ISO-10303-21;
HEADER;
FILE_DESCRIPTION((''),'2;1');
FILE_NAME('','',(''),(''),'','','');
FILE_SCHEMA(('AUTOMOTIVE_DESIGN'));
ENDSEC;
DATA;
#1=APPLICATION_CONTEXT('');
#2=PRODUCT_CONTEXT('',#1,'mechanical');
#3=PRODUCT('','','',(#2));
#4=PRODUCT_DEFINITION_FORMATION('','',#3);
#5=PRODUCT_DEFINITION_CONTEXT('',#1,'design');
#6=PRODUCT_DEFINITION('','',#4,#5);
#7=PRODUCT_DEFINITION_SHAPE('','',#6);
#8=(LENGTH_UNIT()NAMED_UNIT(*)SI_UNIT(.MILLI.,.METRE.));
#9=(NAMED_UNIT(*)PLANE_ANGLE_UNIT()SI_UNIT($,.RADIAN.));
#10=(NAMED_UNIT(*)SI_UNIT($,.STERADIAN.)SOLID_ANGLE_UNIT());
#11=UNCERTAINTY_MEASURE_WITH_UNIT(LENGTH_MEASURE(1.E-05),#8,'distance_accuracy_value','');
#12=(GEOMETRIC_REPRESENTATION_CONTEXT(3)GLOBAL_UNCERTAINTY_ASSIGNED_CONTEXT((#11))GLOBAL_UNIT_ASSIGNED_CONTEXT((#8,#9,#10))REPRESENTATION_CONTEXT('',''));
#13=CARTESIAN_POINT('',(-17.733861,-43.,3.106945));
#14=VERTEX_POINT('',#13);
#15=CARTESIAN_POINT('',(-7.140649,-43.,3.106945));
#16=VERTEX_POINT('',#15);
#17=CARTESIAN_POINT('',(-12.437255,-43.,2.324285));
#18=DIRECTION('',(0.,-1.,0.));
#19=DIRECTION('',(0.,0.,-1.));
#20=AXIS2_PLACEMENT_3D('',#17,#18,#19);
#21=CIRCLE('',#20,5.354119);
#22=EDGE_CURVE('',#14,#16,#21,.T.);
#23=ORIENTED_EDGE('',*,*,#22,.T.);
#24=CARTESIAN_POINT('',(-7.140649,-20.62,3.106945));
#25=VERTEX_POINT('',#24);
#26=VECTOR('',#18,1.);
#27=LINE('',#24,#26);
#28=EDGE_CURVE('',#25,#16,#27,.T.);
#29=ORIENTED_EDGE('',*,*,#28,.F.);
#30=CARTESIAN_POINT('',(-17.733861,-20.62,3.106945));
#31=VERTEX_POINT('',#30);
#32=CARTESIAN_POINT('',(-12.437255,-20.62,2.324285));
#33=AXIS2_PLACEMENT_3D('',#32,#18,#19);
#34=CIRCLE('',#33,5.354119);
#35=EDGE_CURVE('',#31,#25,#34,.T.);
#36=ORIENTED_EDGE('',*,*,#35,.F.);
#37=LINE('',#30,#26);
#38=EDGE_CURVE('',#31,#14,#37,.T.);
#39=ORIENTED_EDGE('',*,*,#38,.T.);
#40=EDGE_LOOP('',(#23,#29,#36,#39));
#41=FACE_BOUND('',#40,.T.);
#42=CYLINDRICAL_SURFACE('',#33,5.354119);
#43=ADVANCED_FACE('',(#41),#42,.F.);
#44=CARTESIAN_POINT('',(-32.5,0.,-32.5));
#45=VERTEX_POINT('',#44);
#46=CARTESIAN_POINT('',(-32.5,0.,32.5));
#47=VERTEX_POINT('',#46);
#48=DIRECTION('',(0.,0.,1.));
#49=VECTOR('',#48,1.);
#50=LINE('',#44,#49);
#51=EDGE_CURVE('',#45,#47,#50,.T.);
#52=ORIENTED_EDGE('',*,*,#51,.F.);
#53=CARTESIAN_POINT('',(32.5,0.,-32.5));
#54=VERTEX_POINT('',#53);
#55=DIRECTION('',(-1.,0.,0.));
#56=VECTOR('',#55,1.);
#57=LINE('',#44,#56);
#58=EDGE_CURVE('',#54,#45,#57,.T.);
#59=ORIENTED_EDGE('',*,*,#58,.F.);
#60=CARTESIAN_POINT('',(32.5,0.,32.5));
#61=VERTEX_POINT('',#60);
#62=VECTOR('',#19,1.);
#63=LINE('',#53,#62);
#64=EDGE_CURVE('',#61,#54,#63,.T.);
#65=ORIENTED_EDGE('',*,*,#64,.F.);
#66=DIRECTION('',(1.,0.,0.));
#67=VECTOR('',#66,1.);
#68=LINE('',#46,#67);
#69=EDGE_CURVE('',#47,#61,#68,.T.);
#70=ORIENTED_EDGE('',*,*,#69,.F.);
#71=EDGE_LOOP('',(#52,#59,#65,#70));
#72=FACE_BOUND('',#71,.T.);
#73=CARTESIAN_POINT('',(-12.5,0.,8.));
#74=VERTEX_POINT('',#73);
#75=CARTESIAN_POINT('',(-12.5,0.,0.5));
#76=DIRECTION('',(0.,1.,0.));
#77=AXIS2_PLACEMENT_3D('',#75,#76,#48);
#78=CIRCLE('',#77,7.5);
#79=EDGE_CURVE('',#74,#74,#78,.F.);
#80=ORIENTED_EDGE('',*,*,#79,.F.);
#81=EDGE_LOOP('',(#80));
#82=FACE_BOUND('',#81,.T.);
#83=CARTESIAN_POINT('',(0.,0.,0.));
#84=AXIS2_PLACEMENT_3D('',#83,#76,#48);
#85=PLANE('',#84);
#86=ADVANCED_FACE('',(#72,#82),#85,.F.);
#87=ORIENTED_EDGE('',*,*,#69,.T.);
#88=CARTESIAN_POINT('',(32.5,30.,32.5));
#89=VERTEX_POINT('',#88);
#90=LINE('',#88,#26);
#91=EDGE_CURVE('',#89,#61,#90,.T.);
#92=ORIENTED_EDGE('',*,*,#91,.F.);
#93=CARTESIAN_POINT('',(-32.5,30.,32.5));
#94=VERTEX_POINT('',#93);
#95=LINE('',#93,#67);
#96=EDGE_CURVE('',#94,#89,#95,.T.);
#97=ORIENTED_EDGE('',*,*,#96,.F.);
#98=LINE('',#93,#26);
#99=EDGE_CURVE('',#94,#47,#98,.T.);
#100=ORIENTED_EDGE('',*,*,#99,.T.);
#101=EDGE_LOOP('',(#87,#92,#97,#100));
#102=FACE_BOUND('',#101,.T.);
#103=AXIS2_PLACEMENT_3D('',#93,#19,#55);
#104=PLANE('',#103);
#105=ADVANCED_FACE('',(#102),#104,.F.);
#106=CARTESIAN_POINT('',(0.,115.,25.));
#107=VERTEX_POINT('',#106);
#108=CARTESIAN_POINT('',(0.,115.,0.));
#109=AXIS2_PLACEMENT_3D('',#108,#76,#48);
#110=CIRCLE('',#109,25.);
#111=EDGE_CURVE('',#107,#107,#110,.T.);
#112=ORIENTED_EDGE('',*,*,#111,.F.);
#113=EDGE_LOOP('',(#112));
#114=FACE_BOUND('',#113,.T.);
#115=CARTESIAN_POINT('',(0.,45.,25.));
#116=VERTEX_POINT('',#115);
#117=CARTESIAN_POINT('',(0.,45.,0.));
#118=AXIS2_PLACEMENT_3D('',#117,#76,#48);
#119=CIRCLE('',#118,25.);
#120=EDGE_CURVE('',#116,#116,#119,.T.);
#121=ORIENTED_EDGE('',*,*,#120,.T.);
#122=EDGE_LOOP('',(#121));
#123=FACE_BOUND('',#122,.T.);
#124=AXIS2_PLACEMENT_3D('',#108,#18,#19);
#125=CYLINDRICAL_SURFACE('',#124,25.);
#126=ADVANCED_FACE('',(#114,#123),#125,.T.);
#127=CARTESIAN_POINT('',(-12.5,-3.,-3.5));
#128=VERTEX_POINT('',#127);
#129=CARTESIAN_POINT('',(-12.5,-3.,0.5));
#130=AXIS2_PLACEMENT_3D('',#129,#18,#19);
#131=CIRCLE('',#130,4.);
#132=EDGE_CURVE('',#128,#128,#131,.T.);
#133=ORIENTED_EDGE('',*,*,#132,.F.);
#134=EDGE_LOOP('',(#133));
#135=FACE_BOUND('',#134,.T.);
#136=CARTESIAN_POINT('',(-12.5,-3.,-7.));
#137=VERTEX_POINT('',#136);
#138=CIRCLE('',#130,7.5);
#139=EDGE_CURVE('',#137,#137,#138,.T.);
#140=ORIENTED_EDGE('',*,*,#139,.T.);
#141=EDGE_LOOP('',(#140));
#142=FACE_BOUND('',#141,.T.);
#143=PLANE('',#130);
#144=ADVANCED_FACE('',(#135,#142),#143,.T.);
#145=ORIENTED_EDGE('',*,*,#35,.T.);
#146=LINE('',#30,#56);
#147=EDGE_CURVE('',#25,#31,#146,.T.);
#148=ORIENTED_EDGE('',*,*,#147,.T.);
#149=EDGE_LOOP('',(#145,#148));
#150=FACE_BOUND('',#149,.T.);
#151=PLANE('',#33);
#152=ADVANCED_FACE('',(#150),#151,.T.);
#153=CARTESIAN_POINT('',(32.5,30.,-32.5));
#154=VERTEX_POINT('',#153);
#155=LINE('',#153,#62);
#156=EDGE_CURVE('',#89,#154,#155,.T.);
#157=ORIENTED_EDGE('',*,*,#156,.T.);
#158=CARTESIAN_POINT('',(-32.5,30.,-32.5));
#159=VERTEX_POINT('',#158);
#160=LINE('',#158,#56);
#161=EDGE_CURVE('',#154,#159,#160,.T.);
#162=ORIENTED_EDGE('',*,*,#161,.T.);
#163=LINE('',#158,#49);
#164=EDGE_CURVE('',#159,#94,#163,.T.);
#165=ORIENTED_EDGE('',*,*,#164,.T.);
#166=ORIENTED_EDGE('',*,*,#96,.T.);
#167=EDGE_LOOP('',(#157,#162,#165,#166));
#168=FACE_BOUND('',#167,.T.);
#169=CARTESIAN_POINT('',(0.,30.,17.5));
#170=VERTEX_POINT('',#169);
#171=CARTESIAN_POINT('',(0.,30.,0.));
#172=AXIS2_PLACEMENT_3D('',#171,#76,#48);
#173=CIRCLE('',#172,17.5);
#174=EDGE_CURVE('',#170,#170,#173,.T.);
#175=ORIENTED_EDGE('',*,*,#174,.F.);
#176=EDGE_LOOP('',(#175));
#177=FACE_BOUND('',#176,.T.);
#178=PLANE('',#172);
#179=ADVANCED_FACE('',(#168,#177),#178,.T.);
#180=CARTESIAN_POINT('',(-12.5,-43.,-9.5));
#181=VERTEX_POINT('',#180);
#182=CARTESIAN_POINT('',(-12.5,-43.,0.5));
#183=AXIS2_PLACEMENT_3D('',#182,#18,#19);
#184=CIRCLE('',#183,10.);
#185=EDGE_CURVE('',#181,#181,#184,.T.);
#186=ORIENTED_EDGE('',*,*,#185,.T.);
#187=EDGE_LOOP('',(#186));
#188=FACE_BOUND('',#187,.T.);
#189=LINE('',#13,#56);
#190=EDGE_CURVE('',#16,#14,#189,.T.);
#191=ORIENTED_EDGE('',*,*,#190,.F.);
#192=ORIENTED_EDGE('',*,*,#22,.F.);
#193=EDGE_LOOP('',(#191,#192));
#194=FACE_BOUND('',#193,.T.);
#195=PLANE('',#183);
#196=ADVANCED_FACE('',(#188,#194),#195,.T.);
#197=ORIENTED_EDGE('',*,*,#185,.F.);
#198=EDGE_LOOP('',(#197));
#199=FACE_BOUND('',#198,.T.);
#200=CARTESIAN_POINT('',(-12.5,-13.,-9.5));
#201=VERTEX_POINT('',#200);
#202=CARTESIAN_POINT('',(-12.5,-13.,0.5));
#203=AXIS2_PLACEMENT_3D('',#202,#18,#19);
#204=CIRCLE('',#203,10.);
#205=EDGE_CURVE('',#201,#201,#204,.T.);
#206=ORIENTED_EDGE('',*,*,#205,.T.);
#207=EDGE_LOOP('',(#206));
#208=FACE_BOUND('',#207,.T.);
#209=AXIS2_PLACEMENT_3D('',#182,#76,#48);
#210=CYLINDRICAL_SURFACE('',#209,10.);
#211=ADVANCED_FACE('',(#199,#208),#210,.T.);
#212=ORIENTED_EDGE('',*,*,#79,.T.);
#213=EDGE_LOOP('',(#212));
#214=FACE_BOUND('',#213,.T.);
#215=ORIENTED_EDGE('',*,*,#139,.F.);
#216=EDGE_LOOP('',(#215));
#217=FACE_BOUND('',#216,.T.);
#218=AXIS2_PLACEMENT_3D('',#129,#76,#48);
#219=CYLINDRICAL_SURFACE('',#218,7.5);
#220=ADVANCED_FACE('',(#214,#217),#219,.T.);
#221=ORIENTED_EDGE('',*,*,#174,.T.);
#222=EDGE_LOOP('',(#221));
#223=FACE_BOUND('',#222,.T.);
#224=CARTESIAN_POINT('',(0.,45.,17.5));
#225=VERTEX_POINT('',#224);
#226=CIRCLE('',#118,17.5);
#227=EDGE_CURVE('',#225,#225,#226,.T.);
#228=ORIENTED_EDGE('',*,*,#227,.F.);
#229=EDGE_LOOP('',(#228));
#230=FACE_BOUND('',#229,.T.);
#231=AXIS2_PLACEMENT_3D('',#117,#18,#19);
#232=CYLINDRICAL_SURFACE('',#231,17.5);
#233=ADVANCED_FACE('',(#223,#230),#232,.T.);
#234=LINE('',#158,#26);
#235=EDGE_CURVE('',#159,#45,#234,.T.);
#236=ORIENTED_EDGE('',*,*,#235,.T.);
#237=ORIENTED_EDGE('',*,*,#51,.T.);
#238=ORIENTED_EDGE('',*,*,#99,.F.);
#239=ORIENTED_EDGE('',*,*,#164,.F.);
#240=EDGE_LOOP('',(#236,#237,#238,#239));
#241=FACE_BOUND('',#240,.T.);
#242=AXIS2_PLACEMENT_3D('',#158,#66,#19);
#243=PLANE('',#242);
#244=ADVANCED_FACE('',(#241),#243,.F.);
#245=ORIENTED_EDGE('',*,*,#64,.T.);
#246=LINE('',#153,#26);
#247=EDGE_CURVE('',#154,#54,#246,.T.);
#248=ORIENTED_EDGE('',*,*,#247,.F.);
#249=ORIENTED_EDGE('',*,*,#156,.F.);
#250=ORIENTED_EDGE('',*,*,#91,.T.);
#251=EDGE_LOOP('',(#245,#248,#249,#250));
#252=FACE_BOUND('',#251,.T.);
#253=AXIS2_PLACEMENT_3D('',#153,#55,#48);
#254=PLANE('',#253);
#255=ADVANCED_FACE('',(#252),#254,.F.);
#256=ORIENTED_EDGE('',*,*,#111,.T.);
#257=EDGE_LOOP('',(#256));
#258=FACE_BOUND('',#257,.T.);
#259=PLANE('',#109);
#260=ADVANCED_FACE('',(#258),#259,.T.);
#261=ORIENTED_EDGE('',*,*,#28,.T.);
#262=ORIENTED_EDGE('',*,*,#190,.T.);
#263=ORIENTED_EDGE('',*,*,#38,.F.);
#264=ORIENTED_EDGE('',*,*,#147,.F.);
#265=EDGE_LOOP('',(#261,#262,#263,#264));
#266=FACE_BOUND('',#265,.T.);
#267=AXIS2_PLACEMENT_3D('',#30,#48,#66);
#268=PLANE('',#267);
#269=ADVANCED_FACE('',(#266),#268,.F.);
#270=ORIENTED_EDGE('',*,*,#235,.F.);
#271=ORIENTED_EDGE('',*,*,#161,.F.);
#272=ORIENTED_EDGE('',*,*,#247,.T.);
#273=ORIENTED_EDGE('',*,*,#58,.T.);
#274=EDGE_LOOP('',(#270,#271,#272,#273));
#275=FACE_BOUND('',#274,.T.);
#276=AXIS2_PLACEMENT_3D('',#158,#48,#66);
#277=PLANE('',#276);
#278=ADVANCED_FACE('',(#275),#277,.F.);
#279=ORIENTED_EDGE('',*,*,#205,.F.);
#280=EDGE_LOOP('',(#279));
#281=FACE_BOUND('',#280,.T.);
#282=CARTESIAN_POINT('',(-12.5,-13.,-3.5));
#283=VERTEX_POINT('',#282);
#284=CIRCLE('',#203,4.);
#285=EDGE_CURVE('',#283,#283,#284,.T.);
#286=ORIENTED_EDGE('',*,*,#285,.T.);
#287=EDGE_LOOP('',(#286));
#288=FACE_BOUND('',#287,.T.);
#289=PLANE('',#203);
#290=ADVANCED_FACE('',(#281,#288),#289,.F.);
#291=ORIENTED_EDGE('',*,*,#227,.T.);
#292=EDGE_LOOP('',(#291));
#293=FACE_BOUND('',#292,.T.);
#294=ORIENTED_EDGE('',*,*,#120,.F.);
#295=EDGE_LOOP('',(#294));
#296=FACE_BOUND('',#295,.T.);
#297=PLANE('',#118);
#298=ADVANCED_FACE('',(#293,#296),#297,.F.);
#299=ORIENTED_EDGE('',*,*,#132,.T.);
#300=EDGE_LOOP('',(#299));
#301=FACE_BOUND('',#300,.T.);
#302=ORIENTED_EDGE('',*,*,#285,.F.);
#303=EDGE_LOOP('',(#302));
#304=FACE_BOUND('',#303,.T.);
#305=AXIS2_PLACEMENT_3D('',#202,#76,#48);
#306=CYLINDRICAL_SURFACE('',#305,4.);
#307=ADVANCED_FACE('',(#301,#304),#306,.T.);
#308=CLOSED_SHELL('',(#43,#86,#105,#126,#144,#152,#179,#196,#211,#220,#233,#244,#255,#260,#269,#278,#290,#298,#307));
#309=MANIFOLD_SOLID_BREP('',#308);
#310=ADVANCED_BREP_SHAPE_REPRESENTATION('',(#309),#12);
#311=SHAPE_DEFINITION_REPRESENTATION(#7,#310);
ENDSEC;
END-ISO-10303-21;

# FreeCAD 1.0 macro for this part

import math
import FreeCAD as App
import Part
import Sketcher

V = App.Vector
Q = App.Units.Quantity


def add_polygon(sketch, points):
    """Adds a closed chain of lines whose ends are joined by coincident constraints."""
    first, n = sketch.GeometryCount, len(points)
    for a, b in zip(points, points[1:] + points[:1]):
        sketch.addGeometry(Part.LineSegment(App.Vector(*a, 0), App.Vector(*b, 0)), False)
    for i in range(n):
        sketch.addConstraint(Sketcher.Constraint("Coincident", first + i, 2, first + (i + 1) % n, 1))

doc = App.newDocument("Part")
body = doc.addObject("PartDesign::Body", "Body")

# Sketch on XZ plane
sketch1 = doc.addObject("Sketcher::SketchObject", "Sketch")
body.addObject(sketch1)
sketch1.AttachmentSupport = (doc.XZ_Plane, [""])
sketch1.MapMode = "FlatFace"
add_polygon(sketch1, [(-32, -32), (-32, 32), (32, 32), (32, -32)])  # lines 0-3
sketch1.addConstraint([
    Sketcher.Constraint("Vertical", 0),
    Sketcher.Constraint("Horizontal", 1),
    Sketcher.Constraint("Vertical", 2),
    Sketcher.Constraint("Horizontal", 3),
    Sketcher.Constraint("Symmetric", 0, 2, 2, 2, -1, 1),
    Sketcher.Constraint("Equal", 3, 0),
    Sketcher.Constraint("DistanceX", 1, 1, 1, 2, Q("65 mm")),
])
pad1 = doc.addObject("PartDesign::Pad", "Pad")
body.addObject(pad1)
pad1.Profile = sketch1
pad1.Length = 30
pad1.Reversed = True

# Sketch on XZ plane
sketch2 = doc.addObject("Sketcher::SketchObject", "Sketch001")
body.addObject(sketch2)
sketch2.AttachmentSupport = (doc.XZ_Plane, [""])
sketch2.MapMode = "FlatFace"
sketch2.AttachmentOffset = App.Placement(V(0, 0, -30), App.Rotation())
sketch2.addGeometry(Part.Circle(V(0, 0, 0), V(0, 0, 1), 18), False)
sketch2.addConstraint([
    Sketcher.Constraint("Coincident", 0, 3, -1, 1),
    Sketcher.Constraint("Diameter", 0, Q("35 mm")),
])
pad2 = doc.addObject("PartDesign::Pad", "Pad001")
body.addObject(pad2)
pad2.Profile = sketch2
pad2.Length = 15
pad2.Reversed = True

# Sketch on XZ plane
sketch3 = doc.addObject("Sketcher::SketchObject", "Sketch002")
body.addObject(sketch3)
sketch3.AttachmentSupport = (doc.XZ_Plane, [""])
sketch3.MapMode = "FlatFace"
sketch3.AttachmentOffset = App.Placement(V(0, 0, -45), App.Rotation())
sketch3.addGeometry(Part.Circle(V(0, 0, 0), V(0, 0, 1), 25), False)
sketch3.addConstraint([
    Sketcher.Constraint("Coincident", 0, 3, -1, 1),
    Sketcher.Constraint("Diameter", 0, Q("50 mm")),
])
pad3 = doc.addObject("PartDesign::Pad", "Pad002")
body.addObject(pad3)
pad3.Profile = sketch3
pad3.Length = 70
pad3.Reversed = True

# Sketch on XZ plane
sketch4 = doc.addObject("Sketcher::SketchObject", "Sketch003")
body.addObject(sketch4)
sketch4.AttachmentSupport = (doc.XZ_Plane, [""])
sketch4.MapMode = "FlatFace"
sketch4.addGeometry(Part.Circle(V(-13, 1, 0), V(0, 0, 1), 8), False)
sketch4.addConstraint([
    Sketcher.Constraint("Diameter", 0, Q("15 mm")),
    Sketcher.Constraint("DistanceX", 0, 3, -1, 1, Q("12.5 mm")),
    Sketcher.Constraint("DistanceY", -1, 1, 0, 3, Q("0.5 mm")),
])
pad4 = doc.addObject("PartDesign::Pad", "Pad003")
body.addObject(pad4)
pad4.Profile = sketch4
pad4.Length = 3

# Sketch on XZ plane
sketch5 = doc.addObject("Sketcher::SketchObject", "Sketch004")
body.addObject(sketch5)
sketch5.AttachmentSupport = (doc.XZ_Plane, [""])
sketch5.MapMode = "FlatFace"
sketch5.AttachmentOffset = App.Placement(V(0, 0, 3), App.Rotation())
sketch5.addGeometry(Part.Circle(V(-12.5, 0.5, 0), V(0, 0, 1), 4), False)
sketch5.addConstraint([
    Sketcher.Constraint("Diameter", 0, Q("8 mm")),
    Sketcher.Constraint("DistanceX", 0, 3, -1, 1, Q("12.5 mm")),
    Sketcher.Constraint("DistanceY", -1, 1, 0, 3, Q("0.5 mm")),
])
pad5 = doc.addObject("PartDesign::Pad", "Pad004")
body.addObject(pad5)
pad5.Profile = sketch5
pad5.Length = 10

# Sketch on XZ plane
sketch6 = doc.addObject("Sketcher::SketchObject", "Sketch005")
body.addObject(sketch6)
sketch6.AttachmentSupport = (doc.XZ_Plane, [""])
sketch6.MapMode = "FlatFace"
sketch6.AttachmentOffset = App.Placement(V(0, 0, 13), App.Rotation())
sketch6.addGeometry(Part.Circle(V(-13, 1, 0), V(0, 0, 1), 10), False)
sketch6.addConstraint([
    Sketcher.Constraint("Diameter", 0, Q("20 mm")),
    Sketcher.Constraint("DistanceX", 0, 3, -1, 1, Q("12.5 mm")),
    Sketcher.Constraint("DistanceY", -1, 1, 0, 3, Q("0.5 mm")),
])
pad6 = doc.addObject("PartDesign::Pad", "Pad005")
body.addObject(pad6)
pad6.Profile = sketch6
pad6.Length = 30

# Sketch on XZ plane
sketch7 = doc.addObject("Sketcher::SketchObject", "Sketch006")
body.addObject(sketch7)
sketch7.AttachmentSupport = (doc.XZ_Plane, [""])
sketch7.MapMode = "FlatFace"
sketch7.AttachmentOffset = App.Placement(V(0, 0, 43), App.Rotation())
sketch7.addGeometry([
    Part.LineSegment(V(-7, 3, 0), V(-18, 3, 0)),
    Part.ArcOfCircle(Part.Circle(V(-12, 2, 0), V(0, 0, 1), 5), math.radians(172), math.radians(368)),
], False)
sketch7.addConstraint([
    Sketcher.Constraint("Coincident", 0, 1, 1, 2),
    Sketcher.Constraint("Coincident", 1, 1, 0, 2),
    Sketcher.Constraint("Horizontal", 0),
    Sketcher.Constraint("Radius", 1, Q("5.354119 mm")),
    Sketcher.Constraint("DistanceX", 0, 2, 0, 1, Q("10.593212 mm")),
    Sketcher.Constraint("DistanceX", 0, 1, -1, 1, Q("7.140649 mm")),
    Sketcher.Constraint("DistanceY", -1, 1, 1, 3, Q("2.324285 mm")),
])
pocket1 = doc.addObject("PartDesign::Pocket", "Pocket")
body.addObject(pocket1)
pocket1.Profile = sketch7
pocket1.Length = 22.38

doc.recompute()
